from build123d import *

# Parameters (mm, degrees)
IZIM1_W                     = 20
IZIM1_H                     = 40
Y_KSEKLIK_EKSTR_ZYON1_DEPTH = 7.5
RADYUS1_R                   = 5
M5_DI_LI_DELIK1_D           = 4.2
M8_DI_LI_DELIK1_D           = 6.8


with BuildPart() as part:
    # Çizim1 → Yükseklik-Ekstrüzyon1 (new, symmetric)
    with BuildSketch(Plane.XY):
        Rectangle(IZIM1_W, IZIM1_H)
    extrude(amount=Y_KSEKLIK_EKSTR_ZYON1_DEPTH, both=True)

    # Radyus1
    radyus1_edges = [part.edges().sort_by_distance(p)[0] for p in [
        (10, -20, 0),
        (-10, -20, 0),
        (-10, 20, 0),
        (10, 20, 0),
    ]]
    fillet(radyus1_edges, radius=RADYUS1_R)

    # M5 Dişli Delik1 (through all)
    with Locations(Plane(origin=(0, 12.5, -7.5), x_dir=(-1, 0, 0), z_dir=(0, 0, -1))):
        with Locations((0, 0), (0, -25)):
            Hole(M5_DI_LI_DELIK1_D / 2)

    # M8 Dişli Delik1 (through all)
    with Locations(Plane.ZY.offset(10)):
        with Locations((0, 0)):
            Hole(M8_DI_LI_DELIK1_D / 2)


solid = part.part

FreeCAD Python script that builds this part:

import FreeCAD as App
import Part
import Sketcher
from FreeCAD import Vector
Q = App.Units.Quantity


def edges_at(feature, points):
    """Names of the edges that pass closest to the given points."""
    edges = feature.Shape.Edges
    near = lambda p: min(range(len(edges)), key=lambda i: edges[i].distToShape(Part.Vertex(*p))[0])
    return sorted({f"Edge{near(p) + 1}" for p in points})

doc = App.newDocument("Part")
body = doc.addObject("PartDesign::Body", "Body")

# Sketch on XY plane
sketch1 = body.newObject("Sketcher::SketchObject", "Sketch")
sketch1.AttachmentSupport = (doc.getObject("XY_Plane"), [""])
sketch1.MapMode = "FlatFace"
sketch1.addGeometry(Part.LineSegment(Vector(-10, 20, 0), Vector(-10, -20, 0)), False)
sketch1.addGeometry(Part.LineSegment(Vector(-10, -20, 0), Vector(10, -20, 0)), False)
sketch1.addGeometry(Part.LineSegment(Vector(10, -20, 0), Vector(10, 20, 0)), False)
sketch1.addGeometry(Part.LineSegment(Vector(10, 20, 0), Vector(-10, 20, 0)), False)
sketch1.addConstraint(Sketcher.Constraint("Coincident", 0, 2, 1, 1))
sketch1.addConstraint(Sketcher.Constraint("Coincident", 1, 2, 2, 1))
sketch1.addConstraint(Sketcher.Constraint("Coincident", 2, 2, 3, 1))
sketch1.addConstraint(Sketcher.Constraint("Coincident", 3, 2, 0, 1))
sketch1.addConstraint(Sketcher.Constraint("Vertical", 0))
sketch1.addConstraint(Sketcher.Constraint("Horizontal", 1))
sketch1.addConstraint(Sketcher.Constraint("Vertical", 2))
sketch1.addConstraint(Sketcher.Constraint("Horizontal", 3))
sketch1.addConstraint(Sketcher.Constraint("Symmetric", 0, 2, 2, 2, -1, 1))
sketch1.addConstraint(Sketcher.Constraint("DistanceX", 1, 1, 1, 2, Q("20 mm")))
sketch1.addConstraint(Sketcher.Constraint("DistanceY", 0, 2, 0, 1, Q("40 mm")))
pad1 = body.newObject("PartDesign::Pad", "Pad")
pad1.Profile = sketch1
pad1.Length = 15
pad1.Midplane = True
doc.recompute()

fillet = body.newObject("PartDesign::Fillet", "Fillet")
fillet.Base = (pad1, edges_at(pad1, [
    (10, -20, 0),
    (-10, -20, 0),
    (-10, 20, 0),
    (10, 20, 0),
]))
fillet.Radius = 5

# Sketch on XY plane
sketch2 = body.newObject("Sketcher::SketchObject", "Sketch001")
sketch2.AttachmentSupport = (doc.getObject("XY_Plane"), [""])
sketch2.MapMode = "FlatFace"
sketch2.AttachmentOffset = App.Placement(Vector(0, 0, -7.5), App.Rotation())
sketch2.addGeometry(Part.Circle(Vector(0, 12.5, 0), Vector(0, 0, 1), 2.1), False)
sketch2.addGeometry(Part.Circle(Vector(0, -12.5, 0), Vector(0, 0, 1), 2.1), False)
sketch2.addConstraint(Sketcher.Constraint("Equal", 0, 1))
sketch2.addConstraint(Sketcher.Constraint("Symmetric", 0, 3, 1, 3, -1, 1))
sketch2.addConstraint(Sketcher.Constraint("PointOnObject", 0, 3, -2))
sketch2.addConstraint(Sketcher.Constraint("Diameter", 0, Q("4.2 mm")))
sketch2.addConstraint(Sketcher.Constraint("DistanceY", 1, 3, 0, 3, Q("25 mm")))
doc.recompute()
hole = body.newObject("PartDesign::Hole", "Hole")
hole.Profile = sketch2
hole.ThreadType = "None"
hole.Diameter = 4.2
hole.DepthType = "ThroughAll"
hole.Reversed = True

# Sketch on YZ plane
sketch3 = body.newObject("Sketcher::SketchObject", "Sketch002")
sketch3.AttachmentSupport = (doc.getObject("YZ_Plane"), [""])
sketch3.MapMode = "FlatFace"
sketch3.AttachmentOffset = App.Placement(Vector(0, 0, -10), App.Rotation())
sketch3.addGeometry(Part.Circle(Vector(0, 0, 0), Vector(0, 0, 1), 3.4), False)
sketch3.addConstraint(Sketcher.Constraint("Coincident", 0, 3, -1, 1))
sketch3.addConstraint(Sketcher.Constraint("Diameter", 0, Q("6.8 mm")))
doc.recompute()
hole2 = body.newObject("PartDesign::Hole", "Hole001")
hole2.Profile = sketch3
hole2.ThreadType = "None"
hole2.Diameter = 6.8
hole2.DepthType = "ThroughAll"
hole2.Reversed = True

doc.recompute()
